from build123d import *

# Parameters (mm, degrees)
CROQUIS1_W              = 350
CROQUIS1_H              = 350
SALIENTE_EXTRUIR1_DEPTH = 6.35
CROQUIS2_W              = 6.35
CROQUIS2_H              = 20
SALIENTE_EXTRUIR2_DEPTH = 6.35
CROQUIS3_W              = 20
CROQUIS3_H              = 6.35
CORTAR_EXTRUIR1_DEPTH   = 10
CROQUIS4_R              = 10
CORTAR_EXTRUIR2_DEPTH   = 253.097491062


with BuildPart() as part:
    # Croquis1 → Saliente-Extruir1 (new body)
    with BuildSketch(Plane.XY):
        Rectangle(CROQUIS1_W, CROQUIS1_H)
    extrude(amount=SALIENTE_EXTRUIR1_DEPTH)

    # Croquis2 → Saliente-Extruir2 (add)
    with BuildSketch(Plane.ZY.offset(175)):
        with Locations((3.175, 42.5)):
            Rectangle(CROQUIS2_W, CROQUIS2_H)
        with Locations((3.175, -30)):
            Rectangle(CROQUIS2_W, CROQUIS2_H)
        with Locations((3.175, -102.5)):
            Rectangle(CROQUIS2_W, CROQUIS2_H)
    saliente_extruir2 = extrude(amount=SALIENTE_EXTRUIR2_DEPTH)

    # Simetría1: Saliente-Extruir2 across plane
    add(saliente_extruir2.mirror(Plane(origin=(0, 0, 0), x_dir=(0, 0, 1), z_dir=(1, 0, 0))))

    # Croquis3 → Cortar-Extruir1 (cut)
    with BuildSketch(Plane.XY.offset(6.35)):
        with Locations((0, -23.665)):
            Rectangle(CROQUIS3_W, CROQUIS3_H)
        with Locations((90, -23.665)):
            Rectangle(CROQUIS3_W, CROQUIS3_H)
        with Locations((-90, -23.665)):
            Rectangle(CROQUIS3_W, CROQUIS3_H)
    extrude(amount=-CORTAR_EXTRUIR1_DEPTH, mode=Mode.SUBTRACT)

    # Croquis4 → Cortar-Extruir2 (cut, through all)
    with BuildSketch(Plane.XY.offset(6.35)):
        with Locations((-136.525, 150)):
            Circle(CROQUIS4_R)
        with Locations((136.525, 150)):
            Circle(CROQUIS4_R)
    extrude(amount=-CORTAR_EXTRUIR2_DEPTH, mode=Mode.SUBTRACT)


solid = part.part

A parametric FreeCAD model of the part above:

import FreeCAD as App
import Part
import Sketcher
from FreeCAD import Vector
Q = App.Units.Quantity


def add_polygon(sketch, points):
    """Adds a closed chain of lines whose ends are joined by coincident constraints."""
    first, n = sketch.GeometryCount, len(points)
    for a, b in zip(points, points[1:] + points[:1]):
        sketch.addGeometry(Part.LineSegment(App.Vector(*a, 0), App.Vector(*b, 0)), False)
    for i in range(n):
        sketch.addConstraint(Sketcher.Constraint("Coincident", first + i, 2, first + (i + 1) % n, 1))

doc = App.newDocument("Part")
params = doc.addObject("Spreadsheet::Sheet", "Params")
for row, (alias, value) in enumerate([
    ("sketch1_width", "350 mm"),
    ("pad1_length", "6.35 mm"),
    ("sketch2_width", "20 mm"),
    ("sketch2_height", "6.35 mm"),
    ("pad2_length", "6.35 mm"),
    ("sketch3_width", "20 mm"),
    ("sketch3_height", "6.35 mm"),
    ("pocket1_length", "10 mm"),
    ("sketch4_diameter", "20 mm"),
], start=1):
    params.set(f"A{row}", alias)
    params.set(f"B{row}", "=" + value)
    params.setAlias(f"B{row}", alias)

body = doc.addObject("PartDesign::Body", "Body")

# Sketch on XY plane
sketch1 = body.newObject("Sketcher::SketchObject", "Sketch")
sketch1.AttachmentSupport = (doc.getObject("XY_Plane"), [""])
sketch1.MapMode = "FlatFace"
add_polygon(sketch1, [(-175, 175), (-175, -175), (175, -175), (175, 175)])  # lines 0-3
sketch1.addConstraint([
    Sketcher.Constraint("Vertical", 0),
    Sketcher.Constraint("Horizontal", 1),
    Sketcher.Constraint("Vertical", 2),
    Sketcher.Constraint("Horizontal", 3),
    Sketcher.Constraint("Symmetric", 0, 2, 2, 2, -1, 1),
    Sketcher.Constraint("Equal", 3, 0),
    Sketcher.Constraint("DistanceX", 1, 1, 1, 2, Q("350 mm")),
])
sketch1.setExpression("Constraints[10]", "Params.sketch1_width")
pad1 = body.newObject("PartDesign::Pad", "Pad")
pad1.Profile = sketch1
pad1.setExpression("Length", "Params.pad1_length")

# Sketch on YZ plane
sketch2 = body.newObject("Sketcher::SketchObject", "Sketch001")
sketch2.AttachmentSupport = (doc.getObject("YZ_Plane"), [""])
sketch2.MapMode = "FlatFace"
sketch2.AttachmentOffset = App.Placement(Vector(0, 0, -175), App.Rotation())
add_polygon(sketch2, [(52.5, 0), (32.5, 0), (32.5, 6.35), (52.5, 6.35)])  # lines 0-3
add_polygon(sketch2, [(-20, 0), (-40, 0), (-40, 6.35), (-20, 6.35)])  # lines 4-7
add_polygon(sketch2, [(-92.5, 0), (-112.5, 0), (-112.5, 6.35), (-92.5, 6.35)])  # lines 8-11
sketch2.addConstraint([
    Sketcher.Constraint("Horizontal", 0),
    Sketcher.Constraint("Vertical", 1),
    Sketcher.Constraint("Horizontal", 2),
    Sketcher.Constraint("Vertical", 3),
    Sketcher.Constraint("Horizontal", 4),
    Sketcher.Constraint("Vertical", 5),
    Sketcher.Constraint("Horizontal", 6),
    Sketcher.Constraint("Vertical", 7),
    Sketcher.Constraint("Horizontal", 8),
    Sketcher.Constraint("Vertical", 9),
    Sketcher.Constraint("Horizontal", 10),
    Sketcher.Constraint("Vertical", 11),
    Sketcher.Constraint("PointOnObject", 0, 2, -1),
    Sketcher.Constraint("PointOnObject", 4, 2, -1),
    Sketcher.Constraint("PointOnObject", 8, 2, -1),
    Sketcher.Constraint("Horizontal", 2, 2, 5, 2),
    Sketcher.Constraint("Horizontal", 6, 2, 9, 2),
    Sketcher.Constraint("Equal", 2, 4),
    Sketcher.Constraint("Equal", 6, 8),
    Sketcher.Constraint("DistanceX", 0, 2, 0, 1, Q("20 mm")),
    Sketcher.Constraint("DistanceX", 4, 2, -1, 1, Q("40 mm")),
    Sketcher.Constraint("DistanceX", 8, 2, 0, 2, Q("145 mm")),
    Sketcher.Constraint("DistanceY", 1, 1, 1, 2, Q("6.35 mm")),
    Sketcher.Constraint("DistanceX", -1, 1, 0, 2, Q("32.5 mm")),
])
sketch2.setExpression("Constraints[31]", "Params.sketch2_width")
sketch2.setExpression("Constraints[34]", "Params.sketch2_height")
pad2 = body.newObject("PartDesign::Pad", "Pad001")
pad2.Profile = sketch2
pad2.setExpression("Length", "Params.pad2_length")
pad2.Reversed = True
doc.recompute()

mirrored = body.newObject("PartDesign::Mirrored", "Mirrored")
mirrored.Originals = [pad2]
mirrored.MirrorPlane = (doc.getObject("YZ_Plane"), [""])
body.Tip = mirrored

# Sketch on XY plane
sketch3 = body.newObject("Sketcher::SketchObject", "Sketch002")
sketch3.AttachmentSupport = (doc.getObject("XY_Plane"), [""])
sketch3.MapMode = "FlatFace"
sketch3.AttachmentOffset = App.Placement(Vector(0, 0, 6.35), App.Rotation())
add_polygon(sketch3, [(-10, -20.49), (-10, -26.84), (10, -26.84), (10, -20.49)])  # lines 0-3
add_polygon(sketch3, [(80, -20.49), (80, -26.84), (100, -26.84), (100, -20.49)])  # lines 4-7
add_polygon(sketch3, [(-100, -20.49), (-100, -26.84), (-80, -26.84), (-80, -20.49)])  # lines 8-11
sketch3.addConstraint([
    Sketcher.Constraint("Vertical", 0),
    Sketcher.Constraint("Horizontal", 1),
    Sketcher.Constraint("Vertical", 2),
    Sketcher.Constraint("Horizontal", 3),
    Sketcher.Constraint("Vertical", 4),
    Sketcher.Constraint("Horizontal", 5),
    Sketcher.Constraint("Vertical", 6),
    Sketcher.Constraint("Horizontal", 7),
    Sketcher.Constraint("Vertical", 8),
    Sketcher.Constraint("Horizontal", 9),
    Sketcher.Constraint("Vertical", 10),
    Sketcher.Constraint("Horizontal", 11),
    Sketcher.Constraint("Symmetric", 5, 2, 8, 2, -2),
    Sketcher.Constraint("Symmetric", 7, 2, 10, 2, -2),
    Sketcher.Constraint("Horizontal", 1, 2, 4, 2),
    Sketcher.Constraint("Horizontal", 3, 2, 6, 2),
    Sketcher.Constraint("Equal", 3, 5),
    Sketcher.Constraint("DistanceX", 1, 1, 1, 2, Q("20 mm")),
    Sketcher.Constraint("DistanceX", 0, 2, -1, 1, Q("10 mm")),
    Sketcher.Constraint("DistanceX", -1, 1, 4, 2, Q("80 mm")),
    Sketcher.Constraint("DistanceY", 0, 2, 0, 1, Q("6.35 mm")),
    Sketcher.Constraint("DistanceY", 0, 2, -1, 1, Q("26.84 mm")),
])
sketch3.setExpression("Constraints[29]", "Params.sketch3_width")
sketch3.setExpression("Constraints[32]", "Params.sketch3_height")
pocket1 = body.newObject("PartDesign::Pocket", "Pocket")
pocket1.Profile = sketch3
pocket1.setExpression("Length", "Params.pocket1_length")

# Sketch on XY plane
sketch4 = body.newObject("Sketcher::SketchObject", "Sketch003")
sketch4.AttachmentSupport = (doc.getObject("XY_Plane"), [""])
sketch4.MapMode = "FlatFace"
sketch4.AttachmentOffset = App.Placement(Vector(0, 0, 6.35), App.Rotation())
sketch4.addGeometry([
    Part.Circle(Vector(-136.525, 150, 0), Vector(0, 0, 1), 10),
    Part.Circle(Vector(136.525, 150, 0), Vector(0, 0, 1), 10),
], False)
sketch4.addConstraint([
    Sketcher.Constraint("Equal", 0, 1),
    Sketcher.Constraint("Symmetric", 0, 3, 1, 3, -2),
    Sketcher.Constraint("Diameter", 0, Q("20 mm")),
    Sketcher.Constraint("DistanceY", -1, 1, 0, 3, Q("150 mm")),
    Sketcher.Constraint("DistanceX", 0, 3, 1, 3, Q("273.05 mm")),
])
sketch4.setExpression("Constraints[2]", "Params.sketch4_diameter")
pocket2 = body.newObject("PartDesign::Pocket", "Pocket001")
pocket2.Profile = sketch4
pocket2.Type = "ThroughAll"

doc.recompute()
